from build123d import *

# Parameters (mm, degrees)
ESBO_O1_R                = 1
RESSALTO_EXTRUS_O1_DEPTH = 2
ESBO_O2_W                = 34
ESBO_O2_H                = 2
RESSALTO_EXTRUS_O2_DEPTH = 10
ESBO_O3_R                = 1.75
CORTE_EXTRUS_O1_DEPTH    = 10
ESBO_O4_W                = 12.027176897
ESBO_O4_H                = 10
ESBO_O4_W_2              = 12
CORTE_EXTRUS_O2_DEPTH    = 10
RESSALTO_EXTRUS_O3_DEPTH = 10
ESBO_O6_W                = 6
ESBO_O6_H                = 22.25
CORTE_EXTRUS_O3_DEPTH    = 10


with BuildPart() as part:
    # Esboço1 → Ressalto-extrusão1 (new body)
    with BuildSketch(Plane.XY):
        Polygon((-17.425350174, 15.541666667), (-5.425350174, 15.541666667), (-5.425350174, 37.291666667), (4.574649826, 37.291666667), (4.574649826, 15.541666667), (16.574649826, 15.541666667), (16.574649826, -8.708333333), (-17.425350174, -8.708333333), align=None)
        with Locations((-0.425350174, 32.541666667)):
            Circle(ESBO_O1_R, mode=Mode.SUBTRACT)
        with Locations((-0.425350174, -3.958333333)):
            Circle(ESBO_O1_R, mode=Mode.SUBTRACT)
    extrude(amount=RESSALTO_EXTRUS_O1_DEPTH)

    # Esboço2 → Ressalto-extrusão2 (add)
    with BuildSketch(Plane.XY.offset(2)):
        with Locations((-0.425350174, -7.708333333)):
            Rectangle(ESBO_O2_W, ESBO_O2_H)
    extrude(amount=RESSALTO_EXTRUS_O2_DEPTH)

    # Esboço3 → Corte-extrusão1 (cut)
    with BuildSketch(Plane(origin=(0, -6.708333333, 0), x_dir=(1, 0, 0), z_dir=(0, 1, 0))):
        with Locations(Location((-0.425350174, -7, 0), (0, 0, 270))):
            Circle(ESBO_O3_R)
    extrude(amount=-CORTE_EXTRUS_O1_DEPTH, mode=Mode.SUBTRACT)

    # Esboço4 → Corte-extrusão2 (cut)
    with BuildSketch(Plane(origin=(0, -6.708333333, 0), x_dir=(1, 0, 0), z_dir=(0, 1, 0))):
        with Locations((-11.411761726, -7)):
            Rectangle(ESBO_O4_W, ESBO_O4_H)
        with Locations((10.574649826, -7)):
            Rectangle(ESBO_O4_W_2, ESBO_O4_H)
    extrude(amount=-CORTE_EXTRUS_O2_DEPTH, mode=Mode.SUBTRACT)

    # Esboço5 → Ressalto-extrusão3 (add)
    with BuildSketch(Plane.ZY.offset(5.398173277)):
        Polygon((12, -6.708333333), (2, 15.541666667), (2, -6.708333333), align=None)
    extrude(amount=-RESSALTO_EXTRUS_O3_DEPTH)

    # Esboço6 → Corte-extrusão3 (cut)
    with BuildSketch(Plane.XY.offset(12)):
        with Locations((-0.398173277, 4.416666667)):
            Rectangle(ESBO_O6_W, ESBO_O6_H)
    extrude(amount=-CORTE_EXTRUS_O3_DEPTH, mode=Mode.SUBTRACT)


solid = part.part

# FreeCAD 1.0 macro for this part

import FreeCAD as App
import Part
import Sketcher
from FreeCAD import Vector

doc = App.newDocument("Part")
body = doc.addObject("PartDesign::Body", "Body")

# Sketch on XY plane
sketch1 = body.newObject("Sketcher::SketchObject", "Sketch")
sketch1.AttachmentSupport = (doc.getObject("XY_Plane"), [""])
sketch1.MapMode = "FlatFace"
sketch1.addGeometry([
    Part.LineSegment(Vector(-5.4, 15.5, 0), Vector(-17.4, 15.5, 0)),  # 0
    Part.LineSegment(Vector(-17.4, 15.5, 0), Vector(-17.4, -8.7, 0)),  # 1
    Part.LineSegment(Vector(-17.4, -8.7, 0), Vector(16.6, -8.7, 0)),  # 2
    Part.LineSegment(Vector(16.6, -8.7, 0), Vector(16.6, 15.5, 0)),  # 3
    Part.LineSegment(Vector(16.6, 15.5, 0), Vector(4.6, 15.5, 0)),  # 4
    Part.LineSegment(Vector(4.6, 15.5, 0), Vector(4.6, 37.3, 0)),  # 5
    Part.LineSegment(Vector(4.6, 37.3, 0), Vector(-5.4, 37.3, 0)),  # 6
    Part.LineSegment(Vector(-5.4, 37.3, 0), Vector(-5.4, 15.5, 0)),  # 7
    Part.Circle(Vector(-0.4, -4, 0), Vector(0, 0, 1), 1),  # 8
    Part.Circle(Vector(-0.4, 32.5, 0), Vector(0, 0, 1), 1),  # 9
], False)
sketch1.addConstraint([
    Sketcher.Constraint("Coincident", 0, 2, 1, 1),
    Sketcher.Constraint("Coincident", 1, 2, 2, 1),
    Sketcher.Constraint("Coincident", 2, 2, 3, 1),
    Sketcher.Constraint("Coincident", 3, 2, 4, 1),
    Sketcher.Constraint("Coincident", 4, 2, 5, 1),
    Sketcher.Constraint("Coincident", 5, 2, 6, 1),
    Sketcher.Constraint("Coincident", 6, 2, 7, 1),
    Sketcher.Constraint("Coincident", 7, 2, 0, 1),
    Sketcher.Constraint("Horizontal", 0),
    Sketcher.Constraint("Vertical", 1),
    Sketcher.Constraint("Horizontal", 2),
    Sketcher.Constraint("Vertical", 3),
    Sketcher.Constraint("Horizontal", 4),
    Sketcher.Constraint("Vertical", 5),
    Sketcher.Constraint("Horizontal", 6),
    Sketcher.Constraint("Vertical", 7),
    Sketcher.Constraint("Equal", 8, 9),
    Sketcher.Constraint("Horizontal", 0, 2, 3, 2),
    Sketcher.Constraint("Vertical", 8, 3, 9, 3),
    Sketcher.Constraint("Equal", 0, 4),
    Sketcher.Constraint("Diameter", 8, 2.0),
    Sketcher.Constraint("DistanceX", 0, 2, 0, 1, 12.0),
    Sketcher.Constraint("DistanceX", 2, 1, 2, 2, 34.0),
    Sketcher.Constraint("DistanceX", 0, 2, 9, 3, 17.0),
    Sketcher.Constraint("DistanceY", 0, 2, 9, 3, 17.0),
    Sketcher.Constraint("DistanceY", 1, 2, 1, 1, 24.25),
    Sketcher.Constraint("DistanceY", 5, 1, 5, 2, 21.75),
    Sketcher.Constraint("DistanceY", 8, 3, 9, 3, 36.5),
    Sketcher.Constraint("DistanceX", 8, 3, -1, 1, 0.42535),
    Sketcher.Constraint("DistanceY", 8, 3, -1, 1, 3.958333),
])
pad1 = body.newObject("PartDesign::Pad", "Pad")
pad1.Profile = sketch1
pad1.Length = 2

# Sketch on XY plane
sketch2 = body.newObject("Sketcher::SketchObject", "Sketch001")
sketch2.AttachmentSupport = (doc.getObject("XY_Plane"), [""])
sketch2.MapMode = "FlatFace"
sketch2.AttachmentOffset = App.Placement(Vector(0, 0, 2), App.Rotation())
sketch2.addGeometry([
    Part.LineSegment(Vector(-17.4, -6.7, 0), Vector(-17.4, -8.7, 0)),
    Part.LineSegment(Vector(-17.4, -8.7, 0), Vector(16.6, -8.7, 0)),
    Part.LineSegment(Vector(16.6, -8.7, 0), Vector(16.6, -6.7, 0)),
    Part.LineSegment(Vector(16.6, -6.7, 0), Vector(-17.4, -6.7, 0)),
], False)
sketch2.addConstraint([
    Sketcher.Constraint("Coincident", 0, 2, 1, 1),
    Sketcher.Constraint("Coincident", 1, 2, 2, 1),
    Sketcher.Constraint("Coincident", 2, 2, 3, 1),
    Sketcher.Constraint("Coincident", 3, 2, 0, 1),
    Sketcher.Constraint("Vertical", 0),
    Sketcher.Constraint("Horizontal", 1),
    Sketcher.Constraint("Vertical", 2),
    Sketcher.Constraint("Horizontal", 3),
    Sketcher.Constraint("DistanceX", 1, 1, 1, 2, 34.0),
    Sketcher.Constraint("DistanceY", 0, 2, 0, 1, 2.0),
    Sketcher.Constraint("DistanceX", 0, 2, -1, 1, 17.42535),
    Sketcher.Constraint("DistanceY", 0, 2, -1, 1, 8.708333),
])
pad2 = body.newObject("PartDesign::Pad", "Pad001")
pad2.Profile = sketch2
pad2.Length = 10

# Sketch on XZ plane
sketch3 = body.newObject("Sketcher::SketchObject", "Sketch002")
sketch3.AttachmentSupport = (doc.getObject("XZ_Plane"), [""])
sketch3.MapMode = "FlatFace"
sketch3.AttachmentOffset = App.Placement(Vector(0, 0, 6.708333), App.Rotation())
sketch3.addGeometry(Part.Circle(Vector(-0.4, 7, 0), Vector(0, 0, 1), 1.8), False)
sketch3.addConstraint([
    Sketcher.Constraint("Diameter", 0, 3.5),
    Sketcher.Constraint("DistanceY", -1, 1, 0, 3, 7.0),
    Sketcher.Constraint("DistanceX", 0, 3, -1, 1, 0.42535),
])
pocket1 = body.newObject("PartDesign::Pocket", "Pocket")
pocket1.Profile = sketch3
pocket1.Length = 10
pocket1.Reversed = True

# Sketch on XZ plane
sketch4 = body.newObject("Sketcher::SketchObject", "Sketch003")
sketch4.AttachmentSupport = (doc.getObject("XZ_Plane"), [""])
sketch4.MapMode = "FlatFace"
sketch4.AttachmentOffset = App.Placement(Vector(0, 0, 6.708333), App.Rotation())
sketch4.addGeometry([
    Part.LineSegment(Vector(-17, 2, 0), Vector(-17, 12, 0)),  # 0
    Part.LineSegment(Vector(-17, 12, 0), Vector(-5, 12, 0)),  # 1
    Part.LineSegment(Vector(-5, 12, 0), Vector(-5, 2, 0)),  # 2
    Part.LineSegment(Vector(-5, 2, 0), Vector(-17, 2, 0)),  # 3
    Part.LineSegment(Vector(5, 2, 0), Vector(5, 12, 0)),  # 4
    Part.LineSegment(Vector(5, 12, 0), Vector(17, 12, 0)),  # 5
    Part.LineSegment(Vector(17, 12, 0), Vector(17, 2, 0)),  # 6
    Part.LineSegment(Vector(17, 2, 0), Vector(5, 2, 0)),  # 7
], False)
sketch4.addConstraint([
    Sketcher.Constraint("Coincident", 0, 2, 1, 1),
    Sketcher.Constraint("Coincident", 1, 2, 2, 1),
    Sketcher.Constraint("Coincident", 2, 2, 3, 1),
    Sketcher.Constraint("Coincident", 3, 2, 0, 1),
    Sketcher.Constraint("Coincident", 4, 2, 5, 1),
    Sketcher.Constraint("Coincident", 5, 2, 6, 1),
    Sketcher.Constraint("Coincident", 6, 2, 7, 1),
    Sketcher.Constraint("Coincident", 7, 2, 4, 1),
    Sketcher.Constraint("Vertical", 0),
    Sketcher.Constraint("Horizontal", 1),
    Sketcher.Constraint("Vertical", 2),
    Sketcher.Constraint("Horizontal", 3),
    Sketcher.Constraint("Vertical", 4),
    Sketcher.Constraint("Horizontal", 5),
    Sketcher.Constraint("Vertical", 6),
    Sketcher.Constraint("Horizontal", 7),
    Sketcher.Constraint("Horizontal", 1, 2, 4, 2),
    Sketcher.Constraint("Horizontal", 3, 2, 6, 2),
    Sketcher.Constraint("DistanceX", 5, 1, 5, 2, 12.0),
    Sketcher.Constraint("DistanceY", 0, 1, 0, 2, 10.0),
    Sketcher.Constraint("DistanceY", -1, 1, 0, 2, 12.0),
    Sketcher.Constraint("DistanceX", 0, 2, 4, 2, 22.0),
    Sketcher.Constraint("DistanceX", 1, 1, 1, 2, 12.027177),
    Sketcher.Constraint("DistanceX", 0, 2, -1, 1, 17.42535),
])
pocket2 = body.newObject("PartDesign::Pocket", "Pocket001")
pocket2.Profile = sketch4
pocket2.Length = 10
pocket2.Reversed = True

# Sketch on YZ plane
sketch5 = body.newObject("Sketcher::SketchObject", "Sketch004")
sketch5.AttachmentSupport = (doc.getObject("YZ_Plane"), [""])
sketch5.MapMode = "FlatFace"
sketch5.AttachmentOffset = App.Placement(Vector(0, 0, -5.398173), App.Rotation())
sketch5.addGeometry([
    Part.LineSegment(Vector(-7, 12, 0), Vector(16, 2, 0)),
    Part.LineSegment(Vector(16, 2, 0), Vector(-7, 2, 0)),
    Part.LineSegment(Vector(-7, 2, 0), Vector(-7, 12, 0)),
], False)
sketch5.addConstraint([
    Sketcher.Constraint("Coincident", 0, 2, 1, 1),
    Sketcher.Constraint("Coincident", 1, 2, 2, 1),
    Sketcher.Constraint("Coincident", 2, 2, 0, 1),
    Sketcher.Constraint("Horizontal", 1),
    Sketcher.Constraint("Vertical", 2),
    Sketcher.Constraint("DistanceY", 2, 1, 2, 2, 10.0),
    Sketcher.Constraint("DistanceY", -1, 1, 0, 2, 2.0),
    Sketcher.Constraint("DistanceX", 1, 2, 1, 1, 22.25),
    Sketcher.Constraint("DistanceX", -1, 1, 0, 2, 15.541667),
])
pad3 = body.newObject("PartDesign::Pad", "Pad002")
pad3.Profile = sketch5
pad3.Length = 10

# Sketch on XY plane
sketch6 = body.newObject("Sketcher::SketchObject", "Sketch005")
sketch6.AttachmentSupport = (doc.getObject("XY_Plane"), [""])
sketch6.MapMode = "FlatFace"
sketch6.AttachmentOffset = App.Placement(Vector(0, 0, 12), App.Rotation())
sketch6.addGeometry([
    Part.LineSegment(Vector(-3, 16, 0), Vector(-3, -7, 0)),
    Part.LineSegment(Vector(-3, -7, 0), Vector(3, -7, 0)),
    Part.LineSegment(Vector(3, -7, 0), Vector(3, 16, 0)),
    Part.LineSegment(Vector(3, 16, 0), Vector(-3, 16, 0)),
], False)
sketch6.addConstraint([
    Sketcher.Constraint("Coincident", 0, 2, 1, 1),
    Sketcher.Constraint("Coincident", 1, 2, 2, 1),
    Sketcher.Constraint("Coincident", 2, 2, 3, 1),
    Sketcher.Constraint("Coincident", 3, 2, 0, 1),
    Sketcher.Constraint("Vertical", 0),
    Sketcher.Constraint("Horizontal", 1),
    Sketcher.Constraint("Vertical", 2),
    Sketcher.Constraint("Horizontal", 3),
    Sketcher.Constraint("DistanceX", 1, 1, 1, 2, 6.0),
    Sketcher.Constraint("DistanceY", 0, 2, 0, 1, 22.25),
    Sketcher.Constraint("DistanceX", 0, 2, -1, 1, 3.398173),
    Sketcher.Constraint("DistanceY", 0, 2, -1, 1, 6.708333),
])
pocket3 = body.newObject("PartDesign::Pocket", "Pocket002")
pocket3.Profile = sketch6
pocket3.Length = 10

doc.recompute()
